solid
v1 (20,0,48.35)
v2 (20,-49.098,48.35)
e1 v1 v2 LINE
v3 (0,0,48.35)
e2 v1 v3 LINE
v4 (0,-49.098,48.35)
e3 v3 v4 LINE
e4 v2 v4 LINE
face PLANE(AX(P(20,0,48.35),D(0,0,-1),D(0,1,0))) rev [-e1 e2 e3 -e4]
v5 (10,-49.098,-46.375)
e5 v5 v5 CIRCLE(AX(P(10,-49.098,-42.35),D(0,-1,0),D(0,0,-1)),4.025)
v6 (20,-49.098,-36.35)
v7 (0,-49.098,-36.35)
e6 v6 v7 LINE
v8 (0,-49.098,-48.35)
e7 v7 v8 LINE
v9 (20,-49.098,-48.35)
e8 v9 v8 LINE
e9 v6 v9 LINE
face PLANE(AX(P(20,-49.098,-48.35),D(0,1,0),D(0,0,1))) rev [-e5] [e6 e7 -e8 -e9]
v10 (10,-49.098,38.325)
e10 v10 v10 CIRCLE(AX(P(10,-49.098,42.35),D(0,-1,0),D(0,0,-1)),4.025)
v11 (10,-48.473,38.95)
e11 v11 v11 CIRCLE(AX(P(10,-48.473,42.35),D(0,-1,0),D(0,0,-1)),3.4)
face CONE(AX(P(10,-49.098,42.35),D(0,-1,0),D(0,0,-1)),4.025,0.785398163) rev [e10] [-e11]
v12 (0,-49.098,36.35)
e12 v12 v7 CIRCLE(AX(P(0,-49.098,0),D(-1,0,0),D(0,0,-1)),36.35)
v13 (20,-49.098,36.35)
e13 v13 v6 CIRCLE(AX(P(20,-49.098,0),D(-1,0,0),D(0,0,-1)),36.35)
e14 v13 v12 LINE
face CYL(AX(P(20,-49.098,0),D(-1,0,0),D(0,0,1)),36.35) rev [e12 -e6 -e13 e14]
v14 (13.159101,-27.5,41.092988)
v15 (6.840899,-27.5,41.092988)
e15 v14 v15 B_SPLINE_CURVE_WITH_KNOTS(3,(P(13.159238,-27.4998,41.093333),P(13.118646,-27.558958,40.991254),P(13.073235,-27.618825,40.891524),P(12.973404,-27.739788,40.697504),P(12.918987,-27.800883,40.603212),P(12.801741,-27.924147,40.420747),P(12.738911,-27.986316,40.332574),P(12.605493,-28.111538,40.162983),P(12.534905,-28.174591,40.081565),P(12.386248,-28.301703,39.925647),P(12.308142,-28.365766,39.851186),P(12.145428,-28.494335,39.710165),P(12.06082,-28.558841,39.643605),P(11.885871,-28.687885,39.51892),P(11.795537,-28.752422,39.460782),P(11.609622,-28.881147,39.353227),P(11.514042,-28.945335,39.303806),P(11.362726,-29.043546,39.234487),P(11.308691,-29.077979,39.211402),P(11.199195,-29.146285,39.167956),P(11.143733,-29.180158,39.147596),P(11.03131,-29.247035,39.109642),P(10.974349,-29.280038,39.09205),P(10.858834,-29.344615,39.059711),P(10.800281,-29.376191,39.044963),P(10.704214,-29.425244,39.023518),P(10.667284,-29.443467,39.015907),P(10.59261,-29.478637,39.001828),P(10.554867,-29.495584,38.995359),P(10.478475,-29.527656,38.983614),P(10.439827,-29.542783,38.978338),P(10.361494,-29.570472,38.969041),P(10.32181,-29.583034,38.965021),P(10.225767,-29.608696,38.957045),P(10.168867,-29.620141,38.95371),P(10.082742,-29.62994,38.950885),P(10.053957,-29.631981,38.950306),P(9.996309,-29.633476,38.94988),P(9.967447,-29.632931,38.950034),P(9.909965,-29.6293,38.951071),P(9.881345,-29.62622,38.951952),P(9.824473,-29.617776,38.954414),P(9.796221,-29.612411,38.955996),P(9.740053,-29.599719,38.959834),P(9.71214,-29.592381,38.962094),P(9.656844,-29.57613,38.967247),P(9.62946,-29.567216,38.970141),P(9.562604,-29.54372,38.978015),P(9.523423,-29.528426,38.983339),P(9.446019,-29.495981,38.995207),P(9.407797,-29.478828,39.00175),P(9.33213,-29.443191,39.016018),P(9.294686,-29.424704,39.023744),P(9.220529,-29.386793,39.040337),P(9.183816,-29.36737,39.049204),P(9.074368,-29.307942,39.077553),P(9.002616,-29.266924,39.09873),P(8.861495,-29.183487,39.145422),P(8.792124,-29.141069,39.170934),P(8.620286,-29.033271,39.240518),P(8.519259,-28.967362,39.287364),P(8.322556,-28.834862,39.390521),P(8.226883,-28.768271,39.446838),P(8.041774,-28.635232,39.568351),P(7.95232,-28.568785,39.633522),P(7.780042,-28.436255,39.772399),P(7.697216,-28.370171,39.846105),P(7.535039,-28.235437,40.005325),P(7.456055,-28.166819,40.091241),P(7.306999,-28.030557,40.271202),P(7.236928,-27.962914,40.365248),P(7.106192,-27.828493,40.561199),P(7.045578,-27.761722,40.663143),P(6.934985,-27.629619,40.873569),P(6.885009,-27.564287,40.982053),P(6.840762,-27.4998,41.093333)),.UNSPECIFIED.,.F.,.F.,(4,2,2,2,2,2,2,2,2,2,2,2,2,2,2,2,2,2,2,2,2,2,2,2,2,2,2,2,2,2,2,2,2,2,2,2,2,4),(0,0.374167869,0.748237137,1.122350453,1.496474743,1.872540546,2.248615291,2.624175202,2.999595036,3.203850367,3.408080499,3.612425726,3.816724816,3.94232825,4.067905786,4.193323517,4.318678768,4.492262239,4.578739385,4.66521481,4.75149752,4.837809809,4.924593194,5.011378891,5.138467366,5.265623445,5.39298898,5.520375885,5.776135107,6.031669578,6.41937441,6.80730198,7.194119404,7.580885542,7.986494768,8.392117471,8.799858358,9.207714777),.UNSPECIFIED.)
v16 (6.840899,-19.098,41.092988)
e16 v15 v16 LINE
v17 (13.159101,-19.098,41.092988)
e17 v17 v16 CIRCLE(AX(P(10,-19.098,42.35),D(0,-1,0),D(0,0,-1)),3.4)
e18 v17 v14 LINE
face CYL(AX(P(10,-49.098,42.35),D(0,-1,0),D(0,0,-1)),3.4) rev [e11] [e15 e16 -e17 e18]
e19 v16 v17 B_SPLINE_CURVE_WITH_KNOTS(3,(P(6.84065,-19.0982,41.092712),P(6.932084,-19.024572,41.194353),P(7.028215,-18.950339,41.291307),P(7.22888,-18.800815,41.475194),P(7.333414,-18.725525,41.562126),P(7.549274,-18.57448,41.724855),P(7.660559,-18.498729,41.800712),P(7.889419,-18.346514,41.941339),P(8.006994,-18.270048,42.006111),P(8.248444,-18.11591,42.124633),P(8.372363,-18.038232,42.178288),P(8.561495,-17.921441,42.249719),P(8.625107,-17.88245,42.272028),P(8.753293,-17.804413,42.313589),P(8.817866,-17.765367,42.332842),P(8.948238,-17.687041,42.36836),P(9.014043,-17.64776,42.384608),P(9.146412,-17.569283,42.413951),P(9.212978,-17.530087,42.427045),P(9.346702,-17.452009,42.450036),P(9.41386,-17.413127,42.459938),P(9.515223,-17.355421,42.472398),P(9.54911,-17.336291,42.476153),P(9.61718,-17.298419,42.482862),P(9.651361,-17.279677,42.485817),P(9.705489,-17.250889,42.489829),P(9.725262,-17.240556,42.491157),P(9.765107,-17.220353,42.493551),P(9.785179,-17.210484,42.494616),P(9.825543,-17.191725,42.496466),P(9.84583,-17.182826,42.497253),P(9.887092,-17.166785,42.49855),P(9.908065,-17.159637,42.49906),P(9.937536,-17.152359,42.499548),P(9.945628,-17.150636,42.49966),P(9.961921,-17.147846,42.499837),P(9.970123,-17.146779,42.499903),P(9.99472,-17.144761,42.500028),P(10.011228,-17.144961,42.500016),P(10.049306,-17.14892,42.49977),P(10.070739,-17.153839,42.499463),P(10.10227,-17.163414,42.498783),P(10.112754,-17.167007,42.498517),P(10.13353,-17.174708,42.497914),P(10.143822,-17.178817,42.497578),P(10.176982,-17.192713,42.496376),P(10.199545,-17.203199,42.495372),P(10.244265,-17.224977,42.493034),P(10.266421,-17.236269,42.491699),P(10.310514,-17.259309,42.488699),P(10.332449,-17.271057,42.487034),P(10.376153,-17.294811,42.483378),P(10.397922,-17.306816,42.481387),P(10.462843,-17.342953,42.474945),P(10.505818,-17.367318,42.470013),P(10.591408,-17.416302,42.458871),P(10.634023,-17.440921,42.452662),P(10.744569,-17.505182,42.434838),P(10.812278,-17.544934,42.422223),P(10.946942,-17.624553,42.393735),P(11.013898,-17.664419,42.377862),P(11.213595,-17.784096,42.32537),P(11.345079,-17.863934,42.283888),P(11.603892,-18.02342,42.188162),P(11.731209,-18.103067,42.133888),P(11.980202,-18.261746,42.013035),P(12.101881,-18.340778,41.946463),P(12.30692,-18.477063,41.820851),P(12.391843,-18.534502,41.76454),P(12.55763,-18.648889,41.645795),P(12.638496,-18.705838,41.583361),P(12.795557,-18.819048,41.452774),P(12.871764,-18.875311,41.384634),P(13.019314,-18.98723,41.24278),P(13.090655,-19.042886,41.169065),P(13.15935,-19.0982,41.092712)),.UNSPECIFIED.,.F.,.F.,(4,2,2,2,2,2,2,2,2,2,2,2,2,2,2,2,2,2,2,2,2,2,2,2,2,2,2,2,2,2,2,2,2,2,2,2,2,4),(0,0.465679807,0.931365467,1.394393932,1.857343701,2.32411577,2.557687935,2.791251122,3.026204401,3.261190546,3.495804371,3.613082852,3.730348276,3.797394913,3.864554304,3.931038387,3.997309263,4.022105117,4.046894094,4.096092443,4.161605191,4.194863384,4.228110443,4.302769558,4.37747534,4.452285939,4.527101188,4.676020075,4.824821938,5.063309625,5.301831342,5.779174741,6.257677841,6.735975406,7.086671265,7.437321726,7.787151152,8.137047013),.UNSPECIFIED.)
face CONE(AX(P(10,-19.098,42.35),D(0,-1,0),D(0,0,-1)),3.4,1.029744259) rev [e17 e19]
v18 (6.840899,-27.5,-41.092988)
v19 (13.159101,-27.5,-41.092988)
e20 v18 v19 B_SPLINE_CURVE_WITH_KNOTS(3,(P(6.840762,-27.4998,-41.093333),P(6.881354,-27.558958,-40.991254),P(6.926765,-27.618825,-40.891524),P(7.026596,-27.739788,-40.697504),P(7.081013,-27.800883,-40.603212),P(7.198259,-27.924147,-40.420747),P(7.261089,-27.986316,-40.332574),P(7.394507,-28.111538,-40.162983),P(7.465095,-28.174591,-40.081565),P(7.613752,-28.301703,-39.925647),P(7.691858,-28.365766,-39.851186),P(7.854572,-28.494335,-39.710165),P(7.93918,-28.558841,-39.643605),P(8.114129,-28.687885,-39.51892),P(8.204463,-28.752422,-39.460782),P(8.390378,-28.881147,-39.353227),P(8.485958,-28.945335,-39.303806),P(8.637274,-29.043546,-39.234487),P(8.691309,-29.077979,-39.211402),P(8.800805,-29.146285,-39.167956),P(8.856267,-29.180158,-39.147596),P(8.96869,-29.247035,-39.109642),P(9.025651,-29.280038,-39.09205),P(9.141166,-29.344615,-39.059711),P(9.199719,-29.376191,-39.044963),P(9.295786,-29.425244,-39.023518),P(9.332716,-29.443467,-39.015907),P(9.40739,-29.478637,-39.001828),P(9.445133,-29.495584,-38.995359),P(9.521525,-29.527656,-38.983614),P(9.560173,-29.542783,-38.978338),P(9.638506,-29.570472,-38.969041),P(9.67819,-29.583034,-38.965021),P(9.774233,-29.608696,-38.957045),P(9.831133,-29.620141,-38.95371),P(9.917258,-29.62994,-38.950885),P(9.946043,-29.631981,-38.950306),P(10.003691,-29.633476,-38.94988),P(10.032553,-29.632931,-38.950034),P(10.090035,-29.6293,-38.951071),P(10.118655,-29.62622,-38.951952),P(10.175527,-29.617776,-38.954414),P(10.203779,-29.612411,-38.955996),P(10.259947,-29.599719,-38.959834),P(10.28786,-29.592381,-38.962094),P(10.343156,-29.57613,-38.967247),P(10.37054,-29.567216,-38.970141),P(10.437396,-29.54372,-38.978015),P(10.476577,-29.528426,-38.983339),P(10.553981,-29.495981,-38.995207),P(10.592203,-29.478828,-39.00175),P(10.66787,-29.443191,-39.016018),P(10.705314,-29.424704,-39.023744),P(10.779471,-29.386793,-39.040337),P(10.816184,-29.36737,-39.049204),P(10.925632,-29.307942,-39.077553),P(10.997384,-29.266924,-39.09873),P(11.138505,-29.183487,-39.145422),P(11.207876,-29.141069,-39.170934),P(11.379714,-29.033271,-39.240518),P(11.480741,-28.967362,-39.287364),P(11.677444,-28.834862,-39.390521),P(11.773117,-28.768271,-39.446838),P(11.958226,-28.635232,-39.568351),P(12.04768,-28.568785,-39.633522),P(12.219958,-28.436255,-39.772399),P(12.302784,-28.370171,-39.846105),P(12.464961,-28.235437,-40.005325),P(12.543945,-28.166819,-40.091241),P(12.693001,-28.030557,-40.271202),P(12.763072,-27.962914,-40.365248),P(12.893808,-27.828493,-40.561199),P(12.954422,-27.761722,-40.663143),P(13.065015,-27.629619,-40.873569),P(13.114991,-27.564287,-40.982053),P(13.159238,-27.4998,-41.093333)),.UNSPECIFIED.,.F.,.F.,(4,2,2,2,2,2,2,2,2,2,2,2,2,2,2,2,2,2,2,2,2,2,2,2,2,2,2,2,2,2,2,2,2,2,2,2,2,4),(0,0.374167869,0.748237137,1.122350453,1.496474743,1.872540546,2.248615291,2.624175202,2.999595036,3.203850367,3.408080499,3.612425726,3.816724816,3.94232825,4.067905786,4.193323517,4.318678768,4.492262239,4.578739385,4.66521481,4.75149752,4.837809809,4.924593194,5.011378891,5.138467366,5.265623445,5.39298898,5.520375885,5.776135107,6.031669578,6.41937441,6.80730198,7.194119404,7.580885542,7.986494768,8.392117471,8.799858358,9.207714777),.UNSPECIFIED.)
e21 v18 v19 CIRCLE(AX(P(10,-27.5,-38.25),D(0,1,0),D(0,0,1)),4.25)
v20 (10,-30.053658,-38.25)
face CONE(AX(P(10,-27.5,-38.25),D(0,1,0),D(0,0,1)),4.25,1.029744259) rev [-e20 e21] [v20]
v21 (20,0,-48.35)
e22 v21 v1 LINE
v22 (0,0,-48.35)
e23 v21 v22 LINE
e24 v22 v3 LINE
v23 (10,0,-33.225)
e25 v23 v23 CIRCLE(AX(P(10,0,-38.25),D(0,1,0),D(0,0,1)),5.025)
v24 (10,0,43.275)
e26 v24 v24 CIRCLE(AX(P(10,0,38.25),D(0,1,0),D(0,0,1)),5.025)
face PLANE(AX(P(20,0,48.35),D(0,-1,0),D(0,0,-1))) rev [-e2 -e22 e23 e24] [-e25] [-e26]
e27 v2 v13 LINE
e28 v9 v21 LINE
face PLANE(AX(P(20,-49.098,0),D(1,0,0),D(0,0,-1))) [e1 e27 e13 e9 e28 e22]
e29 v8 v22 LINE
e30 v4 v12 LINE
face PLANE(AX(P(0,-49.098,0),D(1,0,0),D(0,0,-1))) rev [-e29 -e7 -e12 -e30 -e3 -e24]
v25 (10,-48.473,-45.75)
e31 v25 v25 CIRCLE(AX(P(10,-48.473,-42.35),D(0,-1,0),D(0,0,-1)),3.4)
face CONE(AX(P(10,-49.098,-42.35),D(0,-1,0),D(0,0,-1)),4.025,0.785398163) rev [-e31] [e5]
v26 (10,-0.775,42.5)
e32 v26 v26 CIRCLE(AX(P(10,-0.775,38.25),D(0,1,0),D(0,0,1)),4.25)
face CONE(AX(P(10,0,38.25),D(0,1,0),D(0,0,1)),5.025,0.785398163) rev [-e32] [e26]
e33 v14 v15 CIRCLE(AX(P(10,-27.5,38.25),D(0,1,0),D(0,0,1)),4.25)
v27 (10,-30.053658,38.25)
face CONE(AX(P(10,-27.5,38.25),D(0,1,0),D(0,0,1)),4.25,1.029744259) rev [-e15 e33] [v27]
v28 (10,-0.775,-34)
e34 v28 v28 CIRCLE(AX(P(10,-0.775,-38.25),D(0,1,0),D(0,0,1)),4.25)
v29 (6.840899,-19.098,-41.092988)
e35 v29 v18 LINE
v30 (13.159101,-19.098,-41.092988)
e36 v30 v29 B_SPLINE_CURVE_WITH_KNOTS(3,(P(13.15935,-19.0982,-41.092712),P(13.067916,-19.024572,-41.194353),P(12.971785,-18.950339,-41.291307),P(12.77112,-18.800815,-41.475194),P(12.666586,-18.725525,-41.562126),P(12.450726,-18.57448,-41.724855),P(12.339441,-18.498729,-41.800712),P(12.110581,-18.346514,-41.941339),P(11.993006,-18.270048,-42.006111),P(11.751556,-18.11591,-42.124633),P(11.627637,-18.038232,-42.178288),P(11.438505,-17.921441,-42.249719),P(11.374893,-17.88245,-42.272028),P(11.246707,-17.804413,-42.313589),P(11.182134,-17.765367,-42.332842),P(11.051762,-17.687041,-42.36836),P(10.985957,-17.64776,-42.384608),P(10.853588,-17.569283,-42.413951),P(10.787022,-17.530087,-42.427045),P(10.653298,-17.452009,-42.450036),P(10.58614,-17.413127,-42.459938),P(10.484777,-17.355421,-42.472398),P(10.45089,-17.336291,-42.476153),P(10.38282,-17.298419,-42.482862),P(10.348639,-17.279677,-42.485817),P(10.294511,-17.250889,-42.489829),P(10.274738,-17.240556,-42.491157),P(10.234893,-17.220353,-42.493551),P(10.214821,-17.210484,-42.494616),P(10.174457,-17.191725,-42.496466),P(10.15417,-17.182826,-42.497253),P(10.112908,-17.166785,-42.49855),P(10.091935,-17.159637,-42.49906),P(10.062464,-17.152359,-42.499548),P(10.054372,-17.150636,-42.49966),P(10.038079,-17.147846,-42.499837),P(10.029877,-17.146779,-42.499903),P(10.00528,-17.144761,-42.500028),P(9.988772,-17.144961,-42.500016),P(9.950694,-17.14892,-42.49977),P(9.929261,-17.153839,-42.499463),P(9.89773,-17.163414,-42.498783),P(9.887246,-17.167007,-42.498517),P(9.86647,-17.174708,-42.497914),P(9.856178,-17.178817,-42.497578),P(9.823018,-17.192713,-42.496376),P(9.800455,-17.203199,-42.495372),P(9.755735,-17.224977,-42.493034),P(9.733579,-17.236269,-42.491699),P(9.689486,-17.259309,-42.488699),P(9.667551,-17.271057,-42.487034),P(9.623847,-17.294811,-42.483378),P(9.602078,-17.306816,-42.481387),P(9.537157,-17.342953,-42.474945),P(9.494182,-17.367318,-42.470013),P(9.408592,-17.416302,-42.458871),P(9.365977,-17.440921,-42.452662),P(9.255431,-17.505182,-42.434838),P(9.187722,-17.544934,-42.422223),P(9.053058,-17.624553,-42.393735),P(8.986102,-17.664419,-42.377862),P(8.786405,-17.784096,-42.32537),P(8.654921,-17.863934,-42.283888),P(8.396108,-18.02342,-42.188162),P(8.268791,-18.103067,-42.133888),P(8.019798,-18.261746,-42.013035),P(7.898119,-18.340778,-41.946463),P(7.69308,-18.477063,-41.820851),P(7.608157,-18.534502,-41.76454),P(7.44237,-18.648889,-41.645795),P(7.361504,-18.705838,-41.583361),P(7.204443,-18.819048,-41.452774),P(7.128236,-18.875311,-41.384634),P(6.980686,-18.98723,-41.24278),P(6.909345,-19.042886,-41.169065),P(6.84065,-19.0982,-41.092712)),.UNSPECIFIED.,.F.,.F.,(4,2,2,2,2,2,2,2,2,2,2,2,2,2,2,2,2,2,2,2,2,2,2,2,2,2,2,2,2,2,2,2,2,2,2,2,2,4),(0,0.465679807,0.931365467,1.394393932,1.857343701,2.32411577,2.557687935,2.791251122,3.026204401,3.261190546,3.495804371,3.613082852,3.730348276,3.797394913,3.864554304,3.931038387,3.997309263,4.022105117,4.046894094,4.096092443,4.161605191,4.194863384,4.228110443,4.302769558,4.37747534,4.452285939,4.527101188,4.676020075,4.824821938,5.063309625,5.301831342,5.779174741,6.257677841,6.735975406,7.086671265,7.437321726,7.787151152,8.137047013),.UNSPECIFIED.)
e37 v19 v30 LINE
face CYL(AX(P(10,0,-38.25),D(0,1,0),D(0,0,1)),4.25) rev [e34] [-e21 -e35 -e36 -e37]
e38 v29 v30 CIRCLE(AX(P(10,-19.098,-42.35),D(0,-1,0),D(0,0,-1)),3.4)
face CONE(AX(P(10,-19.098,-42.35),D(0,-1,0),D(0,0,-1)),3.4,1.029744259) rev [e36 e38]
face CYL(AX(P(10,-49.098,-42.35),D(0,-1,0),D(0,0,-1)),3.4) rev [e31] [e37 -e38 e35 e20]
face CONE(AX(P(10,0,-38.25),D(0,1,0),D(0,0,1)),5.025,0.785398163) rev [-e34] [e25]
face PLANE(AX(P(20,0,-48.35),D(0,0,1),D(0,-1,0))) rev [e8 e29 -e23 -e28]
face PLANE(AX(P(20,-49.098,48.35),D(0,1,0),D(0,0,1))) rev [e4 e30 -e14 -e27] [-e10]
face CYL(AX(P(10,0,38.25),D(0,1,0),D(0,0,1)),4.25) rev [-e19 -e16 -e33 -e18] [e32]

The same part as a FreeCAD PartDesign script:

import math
import FreeCAD as App
import Part
import Sketcher

V = App.Vector
Q = App.Units.Quantity

doc = App.newDocument("Part")
body = doc.addObject("PartDesign::Body", "Body")

# Sketch on YZ plane
sketch1 = body.newObject("Sketcher::SketchObject", "Sketch")
sketch1.AttachmentSupport = (doc.getObject("YZ_Plane"), [""])
sketch1.MapMode = "FlatFace"
sketch1.addGeometry(Part.LineSegment(V(0, -48, 0), V(0, 48, 0)), False)
sketch1.addGeometry(Part.LineSegment(V(0, 48, 0), V(-49, 48, 0)), False)
sketch1.addGeometry(Part.LineSegment(V(-49, 48, 0), V(-49, 36, 0)), False)
sketch1.addGeometry(Part.ArcOfCircle(Part.Circle(V(-49, 0, 0), V(0, 0, 1), 36), math.radians(-90), math.radians(90)), False)
sketch1.addGeometry(Part.LineSegment(V(-49, -36, 0), V(-49, -48, 0)), False)
sketch1.addGeometry(Part.LineSegment(V(-49, -48, 0), V(0, -48, 0)), False)
sketch1.addConstraint(Sketcher.Constraint("Coincident", 0, 2, 1, 1))
sketch1.addConstraint(Sketcher.Constraint("Coincident", 1, 2, 2, 1))
sketch1.addConstraint(Sketcher.Constraint("Coincident", 2, 2, 3, 2))
sketch1.addConstraint(Sketcher.Constraint("Coincident", 3, 1, 4, 1))
sketch1.addConstraint(Sketcher.Constraint("Coincident", 4, 2, 5, 1))
sketch1.addConstraint(Sketcher.Constraint("Coincident", 5, 2, 0, 1))
sketch1.addConstraint(Sketcher.Constraint("Vertical", 0))
sketch1.addConstraint(Sketcher.Constraint("Horizontal", 1))
sketch1.addConstraint(Sketcher.Constraint("Vertical", 2))
sketch1.addConstraint(Sketcher.Constraint("Vertical", 4))
sketch1.addConstraint(Sketcher.Constraint("Horizontal", 5))
sketch1.addConstraint(Sketcher.Constraint("Symmetric", 0, 2, 5, 2, -1, 1))
sketch1.addConstraint(Sketcher.Constraint("Symmetric", 2, 2, 3, 1, -1))
sketch1.addConstraint(Sketcher.Constraint("Vertical", 3, 3, 1, 2))
sketch1.addConstraint(Sketcher.Constraint("DistanceY", 2, 2, 2, 1, Q("12 mm")))
sketch1.addConstraint(Sketcher.Constraint("Radius", 3, Q("36.35 mm")))
sketch1.addConstraint(Sketcher.Constraint("DistanceX", 1, 2, 1, 1, Q("49.098 mm")))
pad1 = body.newObject("PartDesign::Pad", "Pad")
pad1.Profile = sketch1
pad1.Length = 20

# Sketch on XZ plane
sketch2 = body.newObject("Sketcher::SketchObject", "Sketch001")
sketch2.AttachmentSupport = (doc.getObject("XZ_Plane"), [""])
sketch2.MapMode = "FlatFace"
sketch2.AttachmentOffset = App.Placement(V(0, 0, 49.098), App.Rotation())
sketch2.addGeometry(Part.Circle(V(10, 42.4, 0), V(0, 0, 1), 3.4), False)
sketch2.addGeometry(Part.Circle(V(10, -42.4, 0), V(0, 0, 1), 3.4), False)
sketch2.addConstraint(Sketcher.Constraint("Equal", 0, 1))
sketch2.addConstraint(Sketcher.Constraint("Symmetric", 0, 3, 1, 3, -1))
sketch2.addConstraint(Sketcher.Constraint("Diameter", 0, Q("6.8 mm")))
sketch2.addConstraint(Sketcher.Constraint("DistanceX", -1, 1, 0, 3, Q("10 mm")))
sketch2.addConstraint(Sketcher.Constraint("DistanceY", 1, 3, 0, 3, Q("84.7 mm")))
doc.recompute()
hole = body.newObject("PartDesign::Hole", "Hole")
hole.Profile = sketch2
hole.ThreadType = "None"
hole.Diameter = 6.8
hole.DepthType = "Dimension"
hole.Depth = 30
hole.DrillPoint = "Angled"
hole.DrillPointAngle = 118
hole.HoleCutType = "Countersink"
hole.HoleCutDiameter = 8.05
hole.HoleCutCountersinkAngle = 90

# Sketch on XZ plane
sketch3 = body.newObject("Sketcher::SketchObject", "Sketch002")
sketch3.AttachmentSupport = (doc.getObject("XZ_Plane"), [""])
sketch3.MapMode = "FlatFace"
sketch3.addGeometry(Part.Circle(V(10, 38.2, 0), V(0, 0, 1), 4.2), False)
sketch3.addGeometry(Part.Circle(V(10, -38.2, 0), V(0, 0, 1), 4.2), False)
sketch3.addConstraint(Sketcher.Constraint("Equal", 0, 1))
sketch3.addConstraint(Sketcher.Constraint("Symmetric", 0, 3, 1, 3, -1))
sketch3.addConstraint(Sketcher.Constraint("Diameter", 0, Q("8.5 mm")))
sketch3.addConstraint(Sketcher.Constraint("DistanceX", -1, 1, 0, 3, Q("10 mm")))
sketch3.addConstraint(Sketcher.Constraint("DistanceY", 1, 3, 0, 3, Q("76.5 mm")))
doc.recompute()
hole2 = body.newObject("PartDesign::Hole", "Hole001")
hole2.Profile = sketch3
hole2.ThreadType = "None"
hole2.Diameter = 8.5
hole2.DepthType = "Dimension"
hole2.Depth = 27.5
hole2.DrillPoint = "Angled"
hole2.DrillPointAngle = 118
hole2.HoleCutType = "Countersink"
hole2.HoleCutDiameter = 10.05
hole2.HoleCutCountersinkAngle = 90
hole2.Reversed = True

doc.recompute()
